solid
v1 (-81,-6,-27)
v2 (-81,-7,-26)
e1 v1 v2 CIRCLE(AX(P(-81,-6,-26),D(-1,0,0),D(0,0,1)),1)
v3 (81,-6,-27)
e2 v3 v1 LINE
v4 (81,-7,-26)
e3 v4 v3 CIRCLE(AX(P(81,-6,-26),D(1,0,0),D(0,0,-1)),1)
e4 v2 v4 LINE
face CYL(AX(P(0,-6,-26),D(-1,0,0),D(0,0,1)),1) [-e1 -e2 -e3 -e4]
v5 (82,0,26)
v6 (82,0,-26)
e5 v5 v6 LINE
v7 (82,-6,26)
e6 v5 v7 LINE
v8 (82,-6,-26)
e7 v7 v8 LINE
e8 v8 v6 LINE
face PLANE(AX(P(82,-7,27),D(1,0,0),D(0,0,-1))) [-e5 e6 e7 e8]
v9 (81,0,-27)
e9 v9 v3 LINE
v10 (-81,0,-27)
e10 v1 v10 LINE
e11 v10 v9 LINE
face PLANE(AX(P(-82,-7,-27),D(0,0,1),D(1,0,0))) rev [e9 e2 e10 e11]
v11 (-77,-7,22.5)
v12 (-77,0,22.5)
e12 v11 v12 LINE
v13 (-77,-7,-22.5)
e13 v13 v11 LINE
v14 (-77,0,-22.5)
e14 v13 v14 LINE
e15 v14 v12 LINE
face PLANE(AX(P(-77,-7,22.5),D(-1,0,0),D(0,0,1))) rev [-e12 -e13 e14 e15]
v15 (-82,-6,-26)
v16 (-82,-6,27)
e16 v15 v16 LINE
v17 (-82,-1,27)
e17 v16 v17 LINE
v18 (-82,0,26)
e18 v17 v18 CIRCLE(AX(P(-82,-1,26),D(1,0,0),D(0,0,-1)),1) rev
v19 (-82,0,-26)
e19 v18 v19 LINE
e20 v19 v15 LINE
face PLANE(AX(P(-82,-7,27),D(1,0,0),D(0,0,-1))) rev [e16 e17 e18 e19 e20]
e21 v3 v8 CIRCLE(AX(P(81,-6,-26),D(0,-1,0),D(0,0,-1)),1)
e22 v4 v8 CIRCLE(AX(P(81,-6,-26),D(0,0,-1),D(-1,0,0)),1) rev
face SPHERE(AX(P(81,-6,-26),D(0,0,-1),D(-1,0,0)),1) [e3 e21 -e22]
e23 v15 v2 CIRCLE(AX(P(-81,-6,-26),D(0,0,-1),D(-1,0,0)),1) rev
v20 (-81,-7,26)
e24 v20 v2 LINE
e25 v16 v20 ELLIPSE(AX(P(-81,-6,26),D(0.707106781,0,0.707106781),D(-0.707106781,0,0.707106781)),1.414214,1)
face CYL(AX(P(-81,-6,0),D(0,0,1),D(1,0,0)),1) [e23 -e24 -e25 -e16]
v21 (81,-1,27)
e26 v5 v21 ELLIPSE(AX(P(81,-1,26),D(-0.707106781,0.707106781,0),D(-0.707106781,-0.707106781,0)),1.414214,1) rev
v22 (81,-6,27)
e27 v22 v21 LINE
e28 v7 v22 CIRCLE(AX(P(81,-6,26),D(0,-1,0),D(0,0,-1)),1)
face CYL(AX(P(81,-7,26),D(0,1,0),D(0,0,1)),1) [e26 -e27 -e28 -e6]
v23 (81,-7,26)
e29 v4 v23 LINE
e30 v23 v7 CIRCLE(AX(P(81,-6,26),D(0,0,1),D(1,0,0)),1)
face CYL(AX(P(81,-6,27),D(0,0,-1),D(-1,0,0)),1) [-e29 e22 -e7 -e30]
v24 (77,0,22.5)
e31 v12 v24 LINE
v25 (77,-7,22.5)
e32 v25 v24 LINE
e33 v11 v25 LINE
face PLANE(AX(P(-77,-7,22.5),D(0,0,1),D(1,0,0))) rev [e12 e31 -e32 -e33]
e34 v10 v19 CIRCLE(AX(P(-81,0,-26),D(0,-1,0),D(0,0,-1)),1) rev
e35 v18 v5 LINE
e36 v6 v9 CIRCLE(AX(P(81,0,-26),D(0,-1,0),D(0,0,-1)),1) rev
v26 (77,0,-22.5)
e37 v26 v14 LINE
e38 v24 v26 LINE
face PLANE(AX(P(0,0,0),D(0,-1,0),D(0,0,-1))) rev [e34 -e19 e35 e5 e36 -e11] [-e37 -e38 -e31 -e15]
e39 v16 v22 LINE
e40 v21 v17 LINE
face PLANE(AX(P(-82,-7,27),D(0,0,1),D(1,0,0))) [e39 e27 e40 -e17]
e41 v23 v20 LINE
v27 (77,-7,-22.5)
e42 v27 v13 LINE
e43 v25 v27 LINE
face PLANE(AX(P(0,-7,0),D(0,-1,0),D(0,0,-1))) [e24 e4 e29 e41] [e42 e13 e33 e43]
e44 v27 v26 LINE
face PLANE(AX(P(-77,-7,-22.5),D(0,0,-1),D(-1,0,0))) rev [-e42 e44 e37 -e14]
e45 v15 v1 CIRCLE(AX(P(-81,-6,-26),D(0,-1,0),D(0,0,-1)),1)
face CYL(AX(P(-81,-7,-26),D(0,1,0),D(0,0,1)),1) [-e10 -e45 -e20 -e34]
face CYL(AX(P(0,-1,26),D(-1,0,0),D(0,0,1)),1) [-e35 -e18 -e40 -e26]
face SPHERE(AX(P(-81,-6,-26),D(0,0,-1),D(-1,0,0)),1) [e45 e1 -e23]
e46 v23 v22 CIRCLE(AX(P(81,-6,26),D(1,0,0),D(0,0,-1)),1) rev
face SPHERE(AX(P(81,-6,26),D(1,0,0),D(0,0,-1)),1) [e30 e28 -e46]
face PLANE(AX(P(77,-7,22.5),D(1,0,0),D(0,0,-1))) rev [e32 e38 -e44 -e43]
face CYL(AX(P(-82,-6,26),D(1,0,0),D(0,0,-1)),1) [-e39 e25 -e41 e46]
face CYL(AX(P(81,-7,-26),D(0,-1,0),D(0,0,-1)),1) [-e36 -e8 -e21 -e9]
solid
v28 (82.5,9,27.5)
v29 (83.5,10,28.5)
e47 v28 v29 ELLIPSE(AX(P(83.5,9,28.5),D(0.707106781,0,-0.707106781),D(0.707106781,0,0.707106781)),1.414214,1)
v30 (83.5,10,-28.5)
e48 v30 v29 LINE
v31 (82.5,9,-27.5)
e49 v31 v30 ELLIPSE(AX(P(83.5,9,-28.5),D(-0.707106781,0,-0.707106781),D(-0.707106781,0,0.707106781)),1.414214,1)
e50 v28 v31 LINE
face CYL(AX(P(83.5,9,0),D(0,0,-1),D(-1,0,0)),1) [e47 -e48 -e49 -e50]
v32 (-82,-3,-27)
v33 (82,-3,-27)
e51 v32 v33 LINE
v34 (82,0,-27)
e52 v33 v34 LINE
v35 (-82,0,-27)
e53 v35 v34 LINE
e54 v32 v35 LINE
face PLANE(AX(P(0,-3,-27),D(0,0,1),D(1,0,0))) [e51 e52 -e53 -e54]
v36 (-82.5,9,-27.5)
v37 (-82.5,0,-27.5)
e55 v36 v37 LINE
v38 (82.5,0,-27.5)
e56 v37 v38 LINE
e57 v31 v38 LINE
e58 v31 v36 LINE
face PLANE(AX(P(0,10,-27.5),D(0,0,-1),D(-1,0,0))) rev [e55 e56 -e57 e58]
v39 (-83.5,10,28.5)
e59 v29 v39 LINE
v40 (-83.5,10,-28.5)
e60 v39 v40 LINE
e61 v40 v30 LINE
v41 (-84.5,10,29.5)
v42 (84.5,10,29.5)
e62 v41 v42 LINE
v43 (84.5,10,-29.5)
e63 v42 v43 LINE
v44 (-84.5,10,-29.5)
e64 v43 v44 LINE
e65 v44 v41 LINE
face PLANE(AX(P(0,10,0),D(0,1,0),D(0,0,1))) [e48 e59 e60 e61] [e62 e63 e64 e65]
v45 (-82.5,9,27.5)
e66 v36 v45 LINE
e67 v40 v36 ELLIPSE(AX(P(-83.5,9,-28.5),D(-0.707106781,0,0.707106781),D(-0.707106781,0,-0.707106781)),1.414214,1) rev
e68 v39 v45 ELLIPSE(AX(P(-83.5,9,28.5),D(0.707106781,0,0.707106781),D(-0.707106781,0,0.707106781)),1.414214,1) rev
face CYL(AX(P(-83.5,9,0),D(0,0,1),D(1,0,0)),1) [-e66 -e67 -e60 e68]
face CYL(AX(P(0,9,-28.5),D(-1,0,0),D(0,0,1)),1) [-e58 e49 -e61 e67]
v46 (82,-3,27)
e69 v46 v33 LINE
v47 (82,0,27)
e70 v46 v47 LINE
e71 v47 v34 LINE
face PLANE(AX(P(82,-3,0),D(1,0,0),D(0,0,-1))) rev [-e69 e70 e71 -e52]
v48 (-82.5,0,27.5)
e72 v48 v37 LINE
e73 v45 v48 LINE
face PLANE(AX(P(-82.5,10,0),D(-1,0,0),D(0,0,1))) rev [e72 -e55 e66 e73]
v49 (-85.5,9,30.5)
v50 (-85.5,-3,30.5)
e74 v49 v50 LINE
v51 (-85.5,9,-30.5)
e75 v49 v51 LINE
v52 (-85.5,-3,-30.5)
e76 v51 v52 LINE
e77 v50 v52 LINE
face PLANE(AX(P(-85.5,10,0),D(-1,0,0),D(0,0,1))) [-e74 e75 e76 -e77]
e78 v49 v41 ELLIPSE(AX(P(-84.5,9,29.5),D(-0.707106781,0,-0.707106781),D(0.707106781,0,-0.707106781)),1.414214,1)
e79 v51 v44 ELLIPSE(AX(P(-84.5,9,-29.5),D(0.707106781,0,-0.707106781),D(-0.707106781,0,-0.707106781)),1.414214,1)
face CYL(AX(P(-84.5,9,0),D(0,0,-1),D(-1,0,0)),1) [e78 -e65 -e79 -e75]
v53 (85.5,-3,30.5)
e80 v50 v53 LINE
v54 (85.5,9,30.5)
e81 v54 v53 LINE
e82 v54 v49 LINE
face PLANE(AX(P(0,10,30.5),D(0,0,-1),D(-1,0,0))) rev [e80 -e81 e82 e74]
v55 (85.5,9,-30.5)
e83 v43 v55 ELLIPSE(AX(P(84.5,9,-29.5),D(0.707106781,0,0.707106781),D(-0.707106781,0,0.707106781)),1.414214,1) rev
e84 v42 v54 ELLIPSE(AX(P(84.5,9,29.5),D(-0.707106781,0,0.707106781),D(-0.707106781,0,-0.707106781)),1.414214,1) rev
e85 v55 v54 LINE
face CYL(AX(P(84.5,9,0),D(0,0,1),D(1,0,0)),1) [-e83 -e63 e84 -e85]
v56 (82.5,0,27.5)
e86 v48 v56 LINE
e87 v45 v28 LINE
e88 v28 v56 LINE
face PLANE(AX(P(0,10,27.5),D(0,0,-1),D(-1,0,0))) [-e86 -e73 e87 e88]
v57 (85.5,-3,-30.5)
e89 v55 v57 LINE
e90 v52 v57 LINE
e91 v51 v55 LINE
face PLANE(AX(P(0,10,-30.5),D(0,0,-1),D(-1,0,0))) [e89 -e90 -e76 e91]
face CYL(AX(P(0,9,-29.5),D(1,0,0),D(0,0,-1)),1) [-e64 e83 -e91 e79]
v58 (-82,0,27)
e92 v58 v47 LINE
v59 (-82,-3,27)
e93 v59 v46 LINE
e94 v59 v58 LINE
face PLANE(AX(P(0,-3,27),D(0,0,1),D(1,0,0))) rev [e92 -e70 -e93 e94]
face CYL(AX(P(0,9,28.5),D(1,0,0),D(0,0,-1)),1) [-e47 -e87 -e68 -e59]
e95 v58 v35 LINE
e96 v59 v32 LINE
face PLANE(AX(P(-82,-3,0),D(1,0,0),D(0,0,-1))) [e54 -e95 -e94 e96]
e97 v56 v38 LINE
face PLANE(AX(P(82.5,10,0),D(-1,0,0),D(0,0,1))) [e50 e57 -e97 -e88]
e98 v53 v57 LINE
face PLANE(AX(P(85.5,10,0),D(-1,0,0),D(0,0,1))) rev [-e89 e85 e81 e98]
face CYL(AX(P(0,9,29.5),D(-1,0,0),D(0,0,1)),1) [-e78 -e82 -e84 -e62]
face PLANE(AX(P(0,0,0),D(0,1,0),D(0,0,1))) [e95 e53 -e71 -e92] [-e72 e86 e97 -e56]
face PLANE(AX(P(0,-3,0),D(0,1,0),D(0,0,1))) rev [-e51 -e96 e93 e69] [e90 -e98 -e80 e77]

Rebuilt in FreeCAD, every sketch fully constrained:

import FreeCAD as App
import Part
import Sketcher
from FreeCAD import Vector


def edges_at(feature, points):
    """Names of the edges that pass closest to the given points."""
    edges = feature.Shape.Edges
    near = lambda p: min(range(len(edges)), key=lambda i: edges[i].distToShape(Part.Vertex(*p))[0])
    return sorted({f"Edge{near(p) + 1}" for p in points})

doc = App.newDocument("Part")
body = doc.addObject("PartDesign::Body", "Body")

# Sketch on XZ plane
sketch1 = body.newObject("Sketcher::SketchObject", "Sketch")
sketch1.AttachmentSupport = (doc.getObject("XZ_Plane"), [""])
sketch1.MapMode = "FlatFace"
sketch1.addGeometry(Part.LineSegment(Vector(-85.5, -30.5, 0), Vector(-85.5, 30.5, 0)), False)
sketch1.addGeometry(Part.LineSegment(Vector(-85.5, 30.5, 0), Vector(85.5, 30.5, 0)), False)
sketch1.addGeometry(Part.LineSegment(Vector(85.5, 30.5, 0), Vector(85.5, -30.5, 0)), False)
sketch1.addGeometry(Part.LineSegment(Vector(85.5, -30.5, 0), Vector(-85.5, -30.5, 0)), False)
sketch1.addGeometry(Part.LineSegment(Vector(82.5, 27.5, 0), Vector(-82.5, 27.5, 0)), False)
sketch1.addGeometry(Part.LineSegment(Vector(-82.5, 27.5, 0), Vector(-82.5, -27.5, 0)), False)
sketch1.addGeometry(Part.LineSegment(Vector(-82.5, -27.5, 0), Vector(82.5, -27.5, 0)), False)
sketch1.addGeometry(Part.LineSegment(Vector(82.5, -27.5, 0), Vector(82.5, 27.5, 0)), False)
sketch1.addConstraint(Sketcher.Constraint("Coincident", 0, 2, 1, 1))
sketch1.addConstraint(Sketcher.Constraint("Coincident", 1, 2, 2, 1))
sketch1.addConstraint(Sketcher.Constraint("Coincident", 2, 2, 3, 1))
sketch1.addConstraint(Sketcher.Constraint("Coincident", 3, 2, 0, 1))
sketch1.addConstraint(Sketcher.Constraint("Coincident", 4, 2, 5, 1))
sketch1.addConstraint(Sketcher.Constraint("Coincident", 5, 2, 6, 1))
sketch1.addConstraint(Sketcher.Constraint("Coincident", 6, 2, 7, 1))
sketch1.addConstraint(Sketcher.Constraint("Coincident", 7, 2, 4, 1))
sketch1.addConstraint(Sketcher.Constraint("Vertical", 0))
sketch1.addConstraint(Sketcher.Constraint("Horizontal", 1))
sketch1.addConstraint(Sketcher.Constraint("Vertical", 2))
sketch1.addConstraint(Sketcher.Constraint("Horizontal", 3))
sketch1.addConstraint(Sketcher.Constraint("Horizontal", 4))
sketch1.addConstraint(Sketcher.Constraint("Vertical", 5))
sketch1.addConstraint(Sketcher.Constraint("Horizontal", 6))
sketch1.addConstraint(Sketcher.Constraint("Vertical", 7))
sketch1.addConstraint(Sketcher.Constraint("Symmetric", 0, 2, 2, 2, -1, 1))
sketch1.addConstraint(Sketcher.Constraint("Symmetric", 4, 2, 6, 2, -1, 1))
sketch1.addConstraint(Sketcher.Constraint("DistanceX", 1, 1, 1, 2, 171.0))
sketch1.addConstraint(Sketcher.Constraint("DistanceX", 4, 2, 4, 1, 165.0))
sketch1.addConstraint(Sketcher.Constraint("DistanceY", 0, 1, 0, 2, 61.0))
sketch1.addConstraint(Sketcher.Constraint("DistanceY", 5, 2, 5, 1, 55.0))
pad1 = body.newObject("PartDesign::Pad", "Pad")
pad1.Profile = sketch1
pad1.Length = 10
pad1.Reversed = True

# Sketch on XZ plane
sketch2 = body.newObject("Sketcher::SketchObject", "Sketch001")
sketch2.AttachmentSupport = (doc.getObject("XZ_Plane"), [""])
sketch2.MapMode = "FlatFace"
sketch2.addGeometry(Part.LineSegment(Vector(-85.5, -30.5, 0), Vector(-85.5, 30.5, 0)), False)
sketch2.addGeometry(Part.LineSegment(Vector(-85.5, 30.5, 0), Vector(85.5, 30.5, 0)), False)
sketch2.addGeometry(Part.LineSegment(Vector(85.5, 30.5, 0), Vector(85.5, -30.5, 0)), False)
sketch2.addGeometry(Part.LineSegment(Vector(85.5, -30.5, 0), Vector(-85.5, -30.5, 0)), False)
sketch2.addGeometry(Part.LineSegment(Vector(82, 27, 0), Vector(-82, 27, 0)), False)
sketch2.addGeometry(Part.LineSegment(Vector(-82, 27, 0), Vector(-82, -27, 0)), False)
sketch2.addGeometry(Part.LineSegment(Vector(-82, -27, 0), Vector(82, -27, 0)), False)
sketch2.addGeometry(Part.LineSegment(Vector(82, -27, 0), Vector(82, 27, 0)), False)
sketch2.addConstraint(Sketcher.Constraint("Coincident", 0, 2, 1, 1))
sketch2.addConstraint(Sketcher.Constraint("Coincident", 1, 2, 2, 1))
sketch2.addConstraint(Sketcher.Constraint("Coincident", 2, 2, 3, 1))
sketch2.addConstraint(Sketcher.Constraint("Coincident", 3, 2, 0, 1))
sketch2.addConstraint(Sketcher.Constraint("Coincident", 4, 2, 5, 1))
sketch2.addConstraint(Sketcher.Constraint("Coincident", 5, 2, 6, 1))
sketch2.addConstraint(Sketcher.Constraint("Coincident", 6, 2, 7, 1))
sketch2.addConstraint(Sketcher.Constraint("Coincident", 7, 2, 4, 1))
sketch2.addConstraint(Sketcher.Constraint("Vertical", 0))
sketch2.addConstraint(Sketcher.Constraint("Horizontal", 1))
sketch2.addConstraint(Sketcher.Constraint("Vertical", 2))
sketch2.addConstraint(Sketcher.Constraint("Horizontal", 3))
sketch2.addConstraint(Sketcher.Constraint("Horizontal", 4))
sketch2.addConstraint(Sketcher.Constraint("Vertical", 5))
sketch2.addConstraint(Sketcher.Constraint("Horizontal", 6))
sketch2.addConstraint(Sketcher.Constraint("Vertical", 7))
sketch2.addConstraint(Sketcher.Constraint("Symmetric", 0, 2, 2, 2, -1, 1))
sketch2.addConstraint(Sketcher.Constraint("Symmetric", 4, 2, 6, 2, -1, 1))
sketch2.addConstraint(Sketcher.Constraint("DistanceX", 1, 1, 1, 2, 171.0))
sketch2.addConstraint(Sketcher.Constraint("DistanceX", 4, 2, 4, 1, 164.0))
sketch2.addConstraint(Sketcher.Constraint("DistanceY", 0, 1, 0, 2, 61.0))
sketch2.addConstraint(Sketcher.Constraint("DistanceY", 5, 2, 5, 1, 54.0))
pad2 = body.newObject("PartDesign::Pad", "Pad001")
pad2.Profile = sketch2
pad2.Length = 3
doc.recompute()

fillet = body.newObject("PartDesign::Fillet", "Fillet")
fillet.Base = (pad2, edges_at(pad2, [
    (0, 10, 30.5),
    (85.5, 10, 0),
    (0, 10, -30.5),
    (82.5, 10, 0),
    (0, 10, 27.5),
    (-82.5, 10, 0),
    (0, 10, -27.5),
    (-85.5, 10, 0),
]))
fillet.Radius = 1
body2 = doc.addObject("PartDesign::Body", "Body001")

# Sketch on XZ plane
sketch3 = body2.newObject("Sketcher::SketchObject", "Sketch002")
sketch3.AttachmentSupport = (doc.getObject("XZ_Plane001"), [""])
sketch3.MapMode = "FlatFace"
sketch3.addGeometry(Part.LineSegment(Vector(-82, -27, 0), Vector(-82, 27, 0)), False)
sketch3.addGeometry(Part.LineSegment(Vector(-82, 27, 0), Vector(82, 27, 0)), False)
sketch3.addGeometry(Part.LineSegment(Vector(82, 27, 0), Vector(82, -27, 0)), False)
sketch3.addGeometry(Part.LineSegment(Vector(82, -27, 0), Vector(-82, -27, 0)), False)
sketch3.addConstraint(Sketcher.Constraint("Coincident", 0, 2, 1, 1))
sketch3.addConstraint(Sketcher.Constraint("Coincident", 1, 2, 2, 1))
sketch3.addConstraint(Sketcher.Constraint("Coincident", 2, 2, 3, 1))
sketch3.addConstraint(Sketcher.Constraint("Coincident", 3, 2, 0, 1))
sketch3.addConstraint(Sketcher.Constraint("Vertical", 0))
sketch3.addConstraint(Sketcher.Constraint("Horizontal", 1))
sketch3.addConstraint(Sketcher.Constraint("Vertical", 2))
sketch3.addConstraint(Sketcher.Constraint("Horizontal", 3))
sketch3.addConstraint(Sketcher.Constraint("Symmetric", 0, 2, 2, 2, -1, 1))
sketch3.addConstraint(Sketcher.Constraint("DistanceX", 1, 1, 1, 2, 164.0))
sketch3.addConstraint(Sketcher.Constraint("DistanceY", 0, 1, 0, 2, 54.0))
pad3 = body2.newObject("PartDesign::Pad", "Pad002")
pad3.Profile = sketch3
pad3.Length = 7
doc.recompute()

fillet2 = body2.newObject("PartDesign::Fillet", "Fillet001")
fillet2.Base = (pad3, edges_at(pad3, [
    (82, -7, 0),
    (0, -7, 27),
    (-82, -7, 0),
    (0, 0, 27),
    (82, -3.5, 27),
    (82, -3.5, -27),
    (-82, -3.5, -27),
    (0, -7, -27),
]))
fillet2.Radius = 1

# Sketch on XZ plane
sketch4 = body2.newObject("Sketcher::SketchObject", "Sketch003")
sketch4.AttachmentSupport = (doc.getObject("XZ_Plane001"), [""])
sketch4.MapMode = "FlatFace"
sketch4.addGeometry(Part.LineSegment(Vector(-77, -22.5, 0), Vector(-77, 22.5, 0)), False)
sketch4.addGeometry(Part.LineSegment(Vector(-77, 22.5, 0), Vector(77, 22.5, 0)), False)
sketch4.addGeometry(Part.LineSegment(Vector(77, 22.5, 0), Vector(77, -22.5, 0)), False)
sketch4.addGeometry(Part.LineSegment(Vector(77, -22.5, 0), Vector(-77, -22.5, 0)), False)
sketch4.addConstraint(Sketcher.Constraint("Coincident", 0, 2, 1, 1))
sketch4.addConstraint(Sketcher.Constraint("Coincident", 1, 2, 2, 1))
sketch4.addConstraint(Sketcher.Constraint("Coincident", 2, 2, 3, 1))
sketch4.addConstraint(Sketcher.Constraint("Coincident", 3, 2, 0, 1))
sketch4.addConstraint(Sketcher.Constraint("Vertical", 0))
sketch4.addConstraint(Sketcher.Constraint("Horizontal", 1))
sketch4.addConstraint(Sketcher.Constraint("Vertical", 2))
sketch4.addConstraint(Sketcher.Constraint("Horizontal", 3))
sketch4.addConstraint(Sketcher.Constraint("Symmetric", 0, 2, 2, 2, -1, 1))
sketch4.addConstraint(Sketcher.Constraint("DistanceX", 1, 1, 1, 2, 154.0))
sketch4.addConstraint(Sketcher.Constraint("DistanceY", 0, 1, 0, 2, 45.0))
pocket1 = body2.newObject("PartDesign::Pocket", "Pocket")
pocket1.Profile = sketch4
pocket1.Type = "ThroughAll"
pocket1.Reversed = True

doc.recompute()
